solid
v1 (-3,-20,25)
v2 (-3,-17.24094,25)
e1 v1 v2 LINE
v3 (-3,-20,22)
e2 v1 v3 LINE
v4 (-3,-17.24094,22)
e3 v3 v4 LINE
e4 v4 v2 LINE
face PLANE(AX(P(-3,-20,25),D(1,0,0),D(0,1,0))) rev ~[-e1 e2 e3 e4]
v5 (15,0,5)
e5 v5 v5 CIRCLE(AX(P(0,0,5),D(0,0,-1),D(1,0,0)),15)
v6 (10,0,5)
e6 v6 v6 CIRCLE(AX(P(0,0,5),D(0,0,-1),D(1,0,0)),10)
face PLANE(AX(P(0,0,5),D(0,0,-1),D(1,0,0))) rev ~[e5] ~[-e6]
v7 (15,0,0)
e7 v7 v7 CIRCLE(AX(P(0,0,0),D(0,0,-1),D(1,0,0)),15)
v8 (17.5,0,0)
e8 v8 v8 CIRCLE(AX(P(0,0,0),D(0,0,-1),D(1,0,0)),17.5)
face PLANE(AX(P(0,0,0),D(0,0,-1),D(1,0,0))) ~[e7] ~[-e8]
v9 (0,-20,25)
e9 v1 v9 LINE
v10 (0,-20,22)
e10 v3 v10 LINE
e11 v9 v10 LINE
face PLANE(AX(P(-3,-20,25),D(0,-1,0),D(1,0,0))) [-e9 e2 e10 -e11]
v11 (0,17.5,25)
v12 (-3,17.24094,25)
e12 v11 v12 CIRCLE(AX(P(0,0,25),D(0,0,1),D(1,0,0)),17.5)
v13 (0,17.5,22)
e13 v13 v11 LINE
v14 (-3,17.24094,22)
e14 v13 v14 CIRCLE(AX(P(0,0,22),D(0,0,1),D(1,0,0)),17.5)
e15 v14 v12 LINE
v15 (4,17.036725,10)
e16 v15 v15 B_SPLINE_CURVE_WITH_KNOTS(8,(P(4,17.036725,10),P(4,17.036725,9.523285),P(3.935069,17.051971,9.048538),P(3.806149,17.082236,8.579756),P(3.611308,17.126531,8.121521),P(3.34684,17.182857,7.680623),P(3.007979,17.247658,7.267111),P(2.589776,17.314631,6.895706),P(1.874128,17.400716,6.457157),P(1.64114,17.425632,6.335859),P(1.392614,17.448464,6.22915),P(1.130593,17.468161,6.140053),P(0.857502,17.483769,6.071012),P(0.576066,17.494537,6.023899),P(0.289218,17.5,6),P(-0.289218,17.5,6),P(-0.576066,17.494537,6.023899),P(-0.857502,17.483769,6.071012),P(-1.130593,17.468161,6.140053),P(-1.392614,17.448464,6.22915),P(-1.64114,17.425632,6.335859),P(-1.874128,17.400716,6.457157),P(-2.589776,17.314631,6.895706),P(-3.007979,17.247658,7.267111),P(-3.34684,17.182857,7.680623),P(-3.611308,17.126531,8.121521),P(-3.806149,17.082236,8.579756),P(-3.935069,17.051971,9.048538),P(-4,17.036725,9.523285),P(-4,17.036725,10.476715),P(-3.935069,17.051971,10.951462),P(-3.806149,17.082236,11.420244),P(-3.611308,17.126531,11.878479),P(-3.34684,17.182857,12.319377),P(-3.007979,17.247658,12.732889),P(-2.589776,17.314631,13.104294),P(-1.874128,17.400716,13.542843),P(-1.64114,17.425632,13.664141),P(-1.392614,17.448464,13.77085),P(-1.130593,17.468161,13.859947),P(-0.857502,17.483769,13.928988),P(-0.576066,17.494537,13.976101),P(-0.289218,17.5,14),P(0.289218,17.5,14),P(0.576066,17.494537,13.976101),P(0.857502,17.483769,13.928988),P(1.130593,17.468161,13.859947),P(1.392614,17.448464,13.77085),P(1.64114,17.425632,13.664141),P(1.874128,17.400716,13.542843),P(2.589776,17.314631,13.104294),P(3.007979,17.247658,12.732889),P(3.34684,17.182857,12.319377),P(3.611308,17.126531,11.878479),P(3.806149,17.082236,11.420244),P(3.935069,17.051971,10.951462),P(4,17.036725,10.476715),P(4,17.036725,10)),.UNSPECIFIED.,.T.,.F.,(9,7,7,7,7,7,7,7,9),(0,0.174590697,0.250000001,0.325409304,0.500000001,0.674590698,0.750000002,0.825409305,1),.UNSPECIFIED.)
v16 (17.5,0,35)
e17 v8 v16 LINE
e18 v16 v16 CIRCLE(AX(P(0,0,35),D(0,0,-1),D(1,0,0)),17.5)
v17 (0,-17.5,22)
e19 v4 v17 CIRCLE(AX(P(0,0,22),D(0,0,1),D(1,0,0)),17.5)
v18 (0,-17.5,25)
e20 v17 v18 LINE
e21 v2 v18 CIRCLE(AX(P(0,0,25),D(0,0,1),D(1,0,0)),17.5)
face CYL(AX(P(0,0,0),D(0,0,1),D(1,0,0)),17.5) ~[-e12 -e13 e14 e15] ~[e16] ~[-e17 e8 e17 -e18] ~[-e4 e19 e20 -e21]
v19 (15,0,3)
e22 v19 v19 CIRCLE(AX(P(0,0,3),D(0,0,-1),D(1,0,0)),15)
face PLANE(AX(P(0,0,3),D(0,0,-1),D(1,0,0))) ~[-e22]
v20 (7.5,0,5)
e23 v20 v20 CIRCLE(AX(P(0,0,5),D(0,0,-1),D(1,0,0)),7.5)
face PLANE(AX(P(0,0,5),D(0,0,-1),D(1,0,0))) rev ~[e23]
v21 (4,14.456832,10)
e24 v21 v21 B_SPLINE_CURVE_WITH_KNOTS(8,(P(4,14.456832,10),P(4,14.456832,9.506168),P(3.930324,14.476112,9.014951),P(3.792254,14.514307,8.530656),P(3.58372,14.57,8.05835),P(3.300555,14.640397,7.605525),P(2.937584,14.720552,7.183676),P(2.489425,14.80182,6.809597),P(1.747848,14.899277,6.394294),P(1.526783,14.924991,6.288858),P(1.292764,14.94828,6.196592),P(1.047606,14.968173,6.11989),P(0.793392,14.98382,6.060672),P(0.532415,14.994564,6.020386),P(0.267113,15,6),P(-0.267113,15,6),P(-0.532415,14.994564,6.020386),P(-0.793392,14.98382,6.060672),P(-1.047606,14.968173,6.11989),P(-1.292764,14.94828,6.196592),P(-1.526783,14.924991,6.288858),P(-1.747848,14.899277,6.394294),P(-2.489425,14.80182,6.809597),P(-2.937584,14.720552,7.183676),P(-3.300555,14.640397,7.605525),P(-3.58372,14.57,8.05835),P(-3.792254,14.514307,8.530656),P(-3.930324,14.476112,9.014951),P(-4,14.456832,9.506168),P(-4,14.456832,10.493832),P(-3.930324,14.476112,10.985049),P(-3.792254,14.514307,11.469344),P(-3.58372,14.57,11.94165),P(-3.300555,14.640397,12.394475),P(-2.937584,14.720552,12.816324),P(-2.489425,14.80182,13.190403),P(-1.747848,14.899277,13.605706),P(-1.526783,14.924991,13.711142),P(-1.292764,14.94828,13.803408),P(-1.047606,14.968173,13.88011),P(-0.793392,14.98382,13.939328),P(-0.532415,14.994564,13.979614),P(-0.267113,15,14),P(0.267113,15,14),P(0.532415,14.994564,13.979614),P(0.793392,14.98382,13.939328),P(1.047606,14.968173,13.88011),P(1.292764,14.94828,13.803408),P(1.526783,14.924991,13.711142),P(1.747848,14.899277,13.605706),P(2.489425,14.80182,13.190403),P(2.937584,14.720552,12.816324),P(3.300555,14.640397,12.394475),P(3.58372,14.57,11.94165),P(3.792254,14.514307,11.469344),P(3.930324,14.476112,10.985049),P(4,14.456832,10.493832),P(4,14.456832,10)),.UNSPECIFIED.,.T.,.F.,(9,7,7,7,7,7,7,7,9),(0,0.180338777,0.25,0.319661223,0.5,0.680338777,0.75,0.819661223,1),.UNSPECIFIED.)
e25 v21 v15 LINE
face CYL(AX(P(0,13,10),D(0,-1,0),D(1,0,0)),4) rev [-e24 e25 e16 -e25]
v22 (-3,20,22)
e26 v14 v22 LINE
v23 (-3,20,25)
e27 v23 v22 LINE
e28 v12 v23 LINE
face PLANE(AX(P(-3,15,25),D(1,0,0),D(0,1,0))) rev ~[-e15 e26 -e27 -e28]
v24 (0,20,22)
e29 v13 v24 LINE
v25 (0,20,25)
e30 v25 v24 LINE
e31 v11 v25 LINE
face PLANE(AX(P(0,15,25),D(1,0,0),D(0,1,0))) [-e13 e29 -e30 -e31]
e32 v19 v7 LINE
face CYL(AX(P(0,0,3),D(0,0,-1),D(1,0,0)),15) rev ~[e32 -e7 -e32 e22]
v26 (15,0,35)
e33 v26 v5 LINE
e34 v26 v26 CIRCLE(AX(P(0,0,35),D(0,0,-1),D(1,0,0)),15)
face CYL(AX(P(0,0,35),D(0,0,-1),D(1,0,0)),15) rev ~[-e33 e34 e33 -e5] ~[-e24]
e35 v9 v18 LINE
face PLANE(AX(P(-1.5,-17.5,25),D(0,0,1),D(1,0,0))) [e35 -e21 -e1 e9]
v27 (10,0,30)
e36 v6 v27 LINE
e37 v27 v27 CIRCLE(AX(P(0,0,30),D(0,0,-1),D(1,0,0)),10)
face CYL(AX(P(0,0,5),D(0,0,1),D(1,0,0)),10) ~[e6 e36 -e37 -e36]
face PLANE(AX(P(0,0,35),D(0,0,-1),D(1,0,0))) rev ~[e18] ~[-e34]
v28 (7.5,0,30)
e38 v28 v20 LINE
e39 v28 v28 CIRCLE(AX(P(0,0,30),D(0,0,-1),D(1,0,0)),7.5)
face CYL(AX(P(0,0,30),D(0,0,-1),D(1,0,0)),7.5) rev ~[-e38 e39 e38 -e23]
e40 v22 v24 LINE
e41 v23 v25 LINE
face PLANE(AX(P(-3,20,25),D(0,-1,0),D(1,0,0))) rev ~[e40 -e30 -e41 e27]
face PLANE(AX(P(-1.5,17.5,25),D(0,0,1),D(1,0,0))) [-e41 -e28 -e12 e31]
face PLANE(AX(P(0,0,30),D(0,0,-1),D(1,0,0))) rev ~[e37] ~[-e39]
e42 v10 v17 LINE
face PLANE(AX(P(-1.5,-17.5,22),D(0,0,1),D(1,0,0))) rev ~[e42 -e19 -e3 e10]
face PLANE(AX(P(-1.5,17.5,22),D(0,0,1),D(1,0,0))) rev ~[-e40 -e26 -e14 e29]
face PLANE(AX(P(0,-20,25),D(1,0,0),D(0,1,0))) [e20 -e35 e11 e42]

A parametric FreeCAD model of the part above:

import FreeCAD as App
import Part
import Sketcher
Q = App.Units.Quantity

doc = App.newDocument("Part")
params = doc.addObject("Spreadsheet::Sheet", "Params")
for row, (alias, value) in enumerate([
    ("sketch1_width", "15 mm"),
    ("sketch1_width2", "5 mm"),
    ("sketch1_height", "2 mm"),
    ("sketch1_height2", "3 mm"),
    ("sketch1_height3", "35 mm"),
    ("revolution_angle", "360 deg"),
    ("sketch2_width", "3 mm"),
    ("sketch2_height", "5 mm"),
    ("pad1_length", "3 mm"),
    ("sketch3_diameter", "8 mm"),
    ("pocket1_length", "5 mm"),
], start=1):
    params.set(f"A{row}", alias)
    params.set(f"B{row}", "=" + value)
    params.setAlias(f"B{row}", alias)

body = doc.addObject("PartDesign::Body", "Body")

sketch1 = body.newObject("Sketcher::SketchObject", "Sketch")
sketch1.AttachmentSupport = (doc.getObject("XZ_Plane"), [""])
sketch1.MapMode = "FlatFace"
sketch1.addGeometry([
    Part.LineSegment(App.Vector(7.5, 5, 0), App.Vector(0, 5, 0)),
    Part.LineSegment(App.Vector(0, 5, 0), App.Vector(0, 3, 0)),
    Part.LineSegment(App.Vector(0, 3, 0), App.Vector(15, 3, 0)),
    Part.LineSegment(App.Vector(15, 3, 0), App.Vector(15, 0, 0)),
    Part.LineSegment(App.Vector(15, 0, 0), App.Vector(17.5, 0, 0)),
    Part.LineSegment(App.Vector(17.5, 0, 0), App.Vector(17.5, 35, 0)),
    Part.LineSegment(App.Vector(17.5, 35, 0), App.Vector(15, 35, 0)),
    Part.LineSegment(App.Vector(15, 35, 0), App.Vector(15, 5, 0)),
    Part.LineSegment(App.Vector(15, 5, 0), App.Vector(10, 5, 0)),
    Part.LineSegment(App.Vector(10, 5, 0), App.Vector(10, 30, 0)),
    Part.LineSegment(App.Vector(10, 30, 0), App.Vector(7.5, 30, 0)),
    Part.LineSegment(App.Vector(7.5, 30, 0), App.Vector(7.5, 5, 0)),
], False)
sketch1.addConstraint([
    Sketcher.Constraint("Coincident", 0, 2, 1, 1),
    Sketcher.Constraint("Coincident", 1, 2, 2, 1),
    Sketcher.Constraint("Coincident", 2, 2, 3, 1),
    Sketcher.Constraint("Coincident", 3, 2, 4, 1),
    Sketcher.Constraint("Coincident", 4, 2, 5, 1),
    Sketcher.Constraint("Coincident", 5, 2, 6, 1),
    Sketcher.Constraint("Coincident", 6, 2, 7, 1),
    Sketcher.Constraint("Coincident", 7, 2, 8, 1),
    Sketcher.Constraint("Coincident", 8, 2, 9, 1),
    Sketcher.Constraint("Coincident", 9, 2, 10, 1),
    Sketcher.Constraint("Coincident", 10, 2, 11, 1),
    Sketcher.Constraint("Coincident", 11, 2, 0, 1),
    Sketcher.Constraint("Horizontal", 0),
    Sketcher.Constraint("Vertical", 1),
    Sketcher.Constraint("Horizontal", 2),
    Sketcher.Constraint("Vertical", 3),
    Sketcher.Constraint("Horizontal", 4),
    Sketcher.Constraint("Vertical", 5),
    Sketcher.Constraint("Horizontal", 6),
    Sketcher.Constraint("Vertical", 7),
    Sketcher.Constraint("Horizontal", 8),
    Sketcher.Constraint("Vertical", 9),
    Sketcher.Constraint("Horizontal", 10),
    Sketcher.Constraint("Vertical", 11),
    Sketcher.Constraint("PointOnObject", 0, 2, -2),
    Sketcher.Constraint("PointOnObject", 3, 2, -1),
    Sketcher.Constraint("Horizontal", 0, 2, 7, 2),
    Sketcher.Constraint("Vertical", 3, 2, 6, 2),
    Sketcher.Constraint("Equal", 6, 10),
    Sketcher.Constraint("DistanceX", 2, 1, 2, 2, Q("15 mm")),
    Sketcher.Constraint("DistanceX", 8, 2, 8, 1, Q("5 mm")),
    Sketcher.Constraint("DistanceY", 1, 2, 1, 1, Q("2 mm")),
    Sketcher.Constraint("DistanceY", 3, 2, 3, 1, Q("3 mm")),
    Sketcher.Constraint("DistanceY", 5, 1, 5, 2, Q("35 mm")),
    Sketcher.Constraint("DistanceY", 9, 1, 9, 2, Q("25 mm")),
    Sketcher.Constraint("DistanceX", 0, 2, 0, 1, Q("7.5 mm")),
])
sketch1.setExpression("Constraints[29]", "Params.sketch1_width")
sketch1.setExpression("Constraints[30]", "Params.sketch1_width2")
sketch1.setExpression("Constraints[31]", "Params.sketch1_height")
sketch1.setExpression("Constraints[32]", "Params.sketch1_height2")
sketch1.setExpression("Constraints[33]", "Params.sketch1_height3")
revolution = body.newObject("PartDesign::Revolution", "Revolution")
revolution.Profile = sketch1
revolution.ReferenceAxis = (sketch1, ["V_Axis"])
revolution.setExpression("Angle", "Params.revolution_angle")

sketch2 = body.newObject("Sketcher::SketchObject", "Sketch001")
sketch2.AttachmentSupport = (doc.getObject("XY_Plane"), [""])
sketch2.MapMode = "FlatFace"
sketch2.AttachmentOffset = App.Placement(App.Vector(0, 0, 25), App.Rotation())
sketch2.addGeometry([
    Part.LineSegment(App.Vector(-3, 20, 0), App.Vector(-3, 15, 0)),
    Part.LineSegment(App.Vector(-3, 15, 0), App.Vector(0, 15, 0)),
    Part.LineSegment(App.Vector(0, 15, 0), App.Vector(0, 20, 0)),
    Part.LineSegment(App.Vector(0, 20, 0), App.Vector(-3, 20, 0)),
    Part.LineSegment(App.Vector(-3, -15, 0), App.Vector(-3, -20, 0)),
    Part.LineSegment(App.Vector(-3, -20, 0), App.Vector(0, -20, 0)),
    Part.LineSegment(App.Vector(0, -20, 0), App.Vector(0, -15, 0)),
    Part.LineSegment(App.Vector(0, -15, 0), App.Vector(-3, -15, 0)),
], False)
sketch2.addConstraint([
    Sketcher.Constraint("Coincident", 0, 2, 1, 1),
    Sketcher.Constraint("Coincident", 1, 2, 2, 1),
    Sketcher.Constraint("Coincident", 2, 2, 3, 1),
    Sketcher.Constraint("Coincident", 3, 2, 0, 1),
    Sketcher.Constraint("Coincident", 4, 2, 5, 1),
    Sketcher.Constraint("Coincident", 5, 2, 6, 1),
    Sketcher.Constraint("Coincident", 6, 2, 7, 1),
    Sketcher.Constraint("Coincident", 7, 2, 4, 1),
    Sketcher.Constraint("Vertical", 0),
    Sketcher.Constraint("Horizontal", 1),
    Sketcher.Constraint("Vertical", 2),
    Sketcher.Constraint("Horizontal", 3),
    Sketcher.Constraint("Vertical", 4),
    Sketcher.Constraint("Horizontal", 5),
    Sketcher.Constraint("Vertical", 6),
    Sketcher.Constraint("Horizontal", 7),
    Sketcher.Constraint("Symmetric", 2, 2, 5, 2, -1, 1),
    Sketcher.Constraint("Symmetric", 1, 2, 6, 2, -1),
    Sketcher.Constraint("Vertical", 3, 2, 4, 2),
    Sketcher.Constraint("DistanceX", 1, 1, 1, 2, Q("3 mm")),
    Sketcher.Constraint("DistanceY", 0, 2, 0, 1, Q("5 mm")),
    Sketcher.Constraint("DistanceY", -1, 1, 0, 2, Q("15 mm")),
])
sketch2.setExpression("Constraints[19]", "Params.sketch2_width")
sketch2.setExpression("Constraints[20]", "Params.sketch2_height")
pad1 = body.newObject("PartDesign::Pad", "Pad")
pad1.Profile = sketch2
pad1.setExpression("Length", "Params.pad1_length")
pad1.Reversed = True

sketch3 = body.newObject("Sketcher::SketchObject", "Sketch002")
sketch3.AttachmentSupport = (doc.getObject("XZ_Plane"), [""])
sketch3.MapMode = "FlatFace"
sketch3.AttachmentOffset = App.Placement(App.Vector(0, 0, -13), App.Rotation())
sketch3.addGeometry(Part.Circle(App.Vector(0, 10, 0), App.Vector(0, 0, 1), 4), False)
sketch3.addConstraint([
    Sketcher.Constraint("PointOnObject", 0, 3, -2),
    Sketcher.Constraint("Diameter", 0, Q("8 mm")),
    Sketcher.Constraint("DistanceY", -1, 1, 0, 3, Q("10 mm")),
])
sketch3.setExpression("Constraints[1]", "Params.sketch3_diameter")
pocket1 = body.newObject("PartDesign::Pocket", "Pocket")
pocket1.Profile = sketch3
pocket1.setExpression("Length", "Params.pocket1_length")

doc.recompute()
